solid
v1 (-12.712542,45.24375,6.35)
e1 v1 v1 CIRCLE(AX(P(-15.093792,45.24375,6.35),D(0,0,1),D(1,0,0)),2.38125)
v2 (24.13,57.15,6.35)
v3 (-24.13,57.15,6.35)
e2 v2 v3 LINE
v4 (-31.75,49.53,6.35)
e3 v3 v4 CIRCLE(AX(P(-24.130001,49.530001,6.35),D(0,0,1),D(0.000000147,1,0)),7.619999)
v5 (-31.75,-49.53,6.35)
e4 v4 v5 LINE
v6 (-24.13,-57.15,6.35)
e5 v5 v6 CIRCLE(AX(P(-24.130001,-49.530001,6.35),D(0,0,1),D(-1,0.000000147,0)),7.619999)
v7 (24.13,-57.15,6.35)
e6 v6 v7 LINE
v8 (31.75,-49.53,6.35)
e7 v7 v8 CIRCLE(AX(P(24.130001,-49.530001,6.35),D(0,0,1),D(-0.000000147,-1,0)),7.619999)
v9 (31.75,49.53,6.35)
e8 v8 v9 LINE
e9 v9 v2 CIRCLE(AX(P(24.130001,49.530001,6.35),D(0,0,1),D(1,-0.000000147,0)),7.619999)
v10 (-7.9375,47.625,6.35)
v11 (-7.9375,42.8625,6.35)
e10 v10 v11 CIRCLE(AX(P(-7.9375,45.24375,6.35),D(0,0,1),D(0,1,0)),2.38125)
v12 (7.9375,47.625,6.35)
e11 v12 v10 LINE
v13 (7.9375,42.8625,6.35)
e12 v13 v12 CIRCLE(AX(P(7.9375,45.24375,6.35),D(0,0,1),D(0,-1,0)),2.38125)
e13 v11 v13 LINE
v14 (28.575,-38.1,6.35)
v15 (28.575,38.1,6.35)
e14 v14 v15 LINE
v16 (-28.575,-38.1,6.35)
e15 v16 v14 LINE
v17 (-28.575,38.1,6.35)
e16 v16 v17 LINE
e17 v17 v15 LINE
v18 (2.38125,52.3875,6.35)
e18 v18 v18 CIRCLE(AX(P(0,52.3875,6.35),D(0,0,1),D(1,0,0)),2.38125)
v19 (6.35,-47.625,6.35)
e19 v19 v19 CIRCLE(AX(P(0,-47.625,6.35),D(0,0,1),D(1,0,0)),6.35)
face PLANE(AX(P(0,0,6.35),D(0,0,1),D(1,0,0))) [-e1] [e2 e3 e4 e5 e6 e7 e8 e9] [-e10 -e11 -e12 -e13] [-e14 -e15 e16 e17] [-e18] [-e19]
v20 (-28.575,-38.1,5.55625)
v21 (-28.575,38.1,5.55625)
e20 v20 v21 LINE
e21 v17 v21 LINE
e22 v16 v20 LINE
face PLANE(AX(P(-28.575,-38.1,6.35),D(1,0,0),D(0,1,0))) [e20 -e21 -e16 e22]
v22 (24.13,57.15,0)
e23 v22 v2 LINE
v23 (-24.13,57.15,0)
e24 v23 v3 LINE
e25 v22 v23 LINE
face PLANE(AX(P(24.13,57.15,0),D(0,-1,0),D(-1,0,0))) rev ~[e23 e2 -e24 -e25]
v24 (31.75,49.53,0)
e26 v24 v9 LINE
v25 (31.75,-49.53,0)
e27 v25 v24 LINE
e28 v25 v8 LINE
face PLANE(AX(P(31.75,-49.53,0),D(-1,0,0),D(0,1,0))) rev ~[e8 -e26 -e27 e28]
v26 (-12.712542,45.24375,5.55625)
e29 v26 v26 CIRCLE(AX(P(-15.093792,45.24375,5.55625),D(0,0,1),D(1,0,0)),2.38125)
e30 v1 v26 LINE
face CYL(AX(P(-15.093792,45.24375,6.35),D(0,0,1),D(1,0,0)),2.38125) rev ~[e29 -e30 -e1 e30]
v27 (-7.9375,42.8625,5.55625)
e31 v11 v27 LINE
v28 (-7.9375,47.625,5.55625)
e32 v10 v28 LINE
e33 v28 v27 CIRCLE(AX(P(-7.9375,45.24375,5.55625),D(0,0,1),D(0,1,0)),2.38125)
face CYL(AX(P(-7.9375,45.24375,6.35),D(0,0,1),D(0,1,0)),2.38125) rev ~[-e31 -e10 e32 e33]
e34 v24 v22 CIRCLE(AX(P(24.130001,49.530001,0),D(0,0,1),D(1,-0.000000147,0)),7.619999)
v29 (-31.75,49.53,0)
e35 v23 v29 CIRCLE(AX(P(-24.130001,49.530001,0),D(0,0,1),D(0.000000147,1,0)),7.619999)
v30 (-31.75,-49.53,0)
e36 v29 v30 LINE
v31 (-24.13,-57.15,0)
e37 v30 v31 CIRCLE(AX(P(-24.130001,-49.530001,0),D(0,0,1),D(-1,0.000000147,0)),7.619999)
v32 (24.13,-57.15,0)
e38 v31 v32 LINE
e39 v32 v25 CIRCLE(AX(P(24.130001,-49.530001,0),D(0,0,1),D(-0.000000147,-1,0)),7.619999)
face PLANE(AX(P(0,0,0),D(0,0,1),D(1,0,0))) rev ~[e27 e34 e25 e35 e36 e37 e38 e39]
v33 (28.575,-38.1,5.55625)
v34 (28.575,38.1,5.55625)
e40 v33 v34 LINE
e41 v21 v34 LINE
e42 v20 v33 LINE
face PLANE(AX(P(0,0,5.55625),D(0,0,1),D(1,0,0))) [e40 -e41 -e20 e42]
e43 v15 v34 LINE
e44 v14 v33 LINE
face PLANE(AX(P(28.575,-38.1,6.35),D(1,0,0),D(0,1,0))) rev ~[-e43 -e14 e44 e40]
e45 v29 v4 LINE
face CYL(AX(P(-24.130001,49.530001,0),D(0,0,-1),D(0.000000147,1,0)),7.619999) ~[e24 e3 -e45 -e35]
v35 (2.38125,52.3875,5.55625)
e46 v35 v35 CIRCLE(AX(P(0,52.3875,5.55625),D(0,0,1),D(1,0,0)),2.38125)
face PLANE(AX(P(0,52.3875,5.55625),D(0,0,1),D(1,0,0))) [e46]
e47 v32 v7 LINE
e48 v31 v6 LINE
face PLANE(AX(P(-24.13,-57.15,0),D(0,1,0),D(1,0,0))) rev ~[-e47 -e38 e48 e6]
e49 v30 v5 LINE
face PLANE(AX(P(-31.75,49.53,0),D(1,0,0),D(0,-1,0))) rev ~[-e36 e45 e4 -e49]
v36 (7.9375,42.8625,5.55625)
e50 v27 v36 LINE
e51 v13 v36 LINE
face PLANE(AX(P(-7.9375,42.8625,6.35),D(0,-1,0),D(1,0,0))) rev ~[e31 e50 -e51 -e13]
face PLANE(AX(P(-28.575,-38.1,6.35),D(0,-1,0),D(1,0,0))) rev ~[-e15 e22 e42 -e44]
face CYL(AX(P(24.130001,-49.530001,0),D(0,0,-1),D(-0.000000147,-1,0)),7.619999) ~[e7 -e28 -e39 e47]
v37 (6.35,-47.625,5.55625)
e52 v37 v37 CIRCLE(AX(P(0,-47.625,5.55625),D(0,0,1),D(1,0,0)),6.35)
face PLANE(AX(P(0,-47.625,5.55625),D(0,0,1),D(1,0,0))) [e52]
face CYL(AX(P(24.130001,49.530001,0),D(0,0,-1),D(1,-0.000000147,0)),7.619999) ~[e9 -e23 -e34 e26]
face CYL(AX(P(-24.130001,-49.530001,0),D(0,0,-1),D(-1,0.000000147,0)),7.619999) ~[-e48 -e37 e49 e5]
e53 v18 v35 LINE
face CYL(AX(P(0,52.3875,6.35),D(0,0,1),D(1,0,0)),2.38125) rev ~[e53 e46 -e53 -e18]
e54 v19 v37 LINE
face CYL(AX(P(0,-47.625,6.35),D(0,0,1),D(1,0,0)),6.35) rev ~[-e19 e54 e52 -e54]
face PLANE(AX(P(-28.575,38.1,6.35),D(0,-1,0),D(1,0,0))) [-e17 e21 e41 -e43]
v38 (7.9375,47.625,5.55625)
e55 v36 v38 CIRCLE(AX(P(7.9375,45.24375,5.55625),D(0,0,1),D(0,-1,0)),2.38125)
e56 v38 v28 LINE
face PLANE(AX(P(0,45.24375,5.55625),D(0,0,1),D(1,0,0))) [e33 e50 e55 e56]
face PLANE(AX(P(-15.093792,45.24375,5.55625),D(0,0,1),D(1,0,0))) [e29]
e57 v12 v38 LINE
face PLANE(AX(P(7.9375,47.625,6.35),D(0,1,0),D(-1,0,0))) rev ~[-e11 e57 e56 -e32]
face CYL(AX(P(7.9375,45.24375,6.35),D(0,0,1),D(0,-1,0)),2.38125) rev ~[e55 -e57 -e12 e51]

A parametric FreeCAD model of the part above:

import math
import FreeCAD as App
import Part
import Sketcher
Q = App.Units.Quantity

doc = App.newDocument("Part")
params = doc.addObject("Spreadsheet::Sheet", "Params")
for row, (alias, value) in enumerate([
    ("sketch1_radius", "0.3 in"),
    ("sketch1_width", "1.9 in"),
    ("sketch1_height", "3.9 in"),
    ("pad1_length", "0.25 in"),
    ("sketch2_diameter", "0.5 in"),
    ("sketch2_height", "3 in"),
    ("sketch2_diameter2", "0.1875 in"),
    ("sketch2_width", "2.25 in"),
    ("sketch2_width2", "0.625 in"),
    ("pocket1_length", "0.03125 in"),
], start=1):
    params.set(f"A{row}", alias)
    params.set(f"B{row}", "=" + value)
    params.setAlias(f"B{row}", alias)

body = doc.addObject("PartDesign::Body", "Body")

# Sketch on XY plane
sketch1 = doc.addObject("Sketcher::SketchObject", "Sketch")
body.addObject(sketch1)
sketch1.AttachmentSupport = (doc.XY_Plane, [""])
sketch1.MapMode = "FlatFace"
sketch1.addGeometry(Part.ArcOfCircle(Part.Circle(App.Vector(24, 50, 0), App.Vector(0, 0, 1), 8), math.radians(0), math.radians(90)), False)
sketch1.addGeometry(Part.LineSegment(App.Vector(24, 57, 0), App.Vector(-24, 57, 0)), False)
sketch1.addGeometry(Part.ArcOfCircle(Part.Circle(App.Vector(-24, 50, 0), App.Vector(0, 0, 1), 8), math.radians(90), math.radians(180)), False)
sketch1.addGeometry(Part.LineSegment(App.Vector(-32, 50, 0), App.Vector(-32, -50, 0)), False)
sketch1.addGeometry(Part.ArcOfCircle(Part.Circle(App.Vector(-24, -50, 0), App.Vector(0, 0, 1), 8), math.radians(180), math.radians(270)), False)
sketch1.addGeometry(Part.LineSegment(App.Vector(-24, -57, 0), App.Vector(24, -57, 0)), False)
sketch1.addGeometry(Part.ArcOfCircle(Part.Circle(App.Vector(24, -50, 0), App.Vector(0, 0, 1), 8), math.radians(-90), math.radians(0)), False)
sketch1.addGeometry(Part.LineSegment(App.Vector(32, -50, 0), App.Vector(32, 50, 0)), False)
sketch1.addConstraint(Sketcher.Constraint("Tangent", 0, 2, 1, 1))
sketch1.addConstraint(Sketcher.Constraint("Tangent", 1, 2, 2, 1))
sketch1.addConstraint(Sketcher.Constraint("Tangent", 2, 2, 3, 1))
sketch1.addConstraint(Sketcher.Constraint("Tangent", 3, 2, 4, 1))
sketch1.addConstraint(Sketcher.Constraint("Tangent", 4, 2, 5, 1))
sketch1.addConstraint(Sketcher.Constraint("Tangent", 5, 2, 6, 1))
sketch1.addConstraint(Sketcher.Constraint("Tangent", 6, 2, 7, 1))
sketch1.addConstraint(Sketcher.Constraint("Tangent", 7, 2, 0, 1))
sketch1.addConstraint(Sketcher.Constraint("Horizontal", 1))
sketch1.addConstraint(Sketcher.Constraint("Vertical", 3))
sketch1.addConstraint(Sketcher.Constraint("Horizontal", 5))
sketch1.addConstraint(Sketcher.Constraint("Vertical", 7))
sketch1.addConstraint(Sketcher.Constraint("Equal", 0, 2))
sketch1.addConstraint(Sketcher.Constraint("Equal", 2, 4))
sketch1.addConstraint(Sketcher.Constraint("Equal", 4, 6))
sketch1.addConstraint(Sketcher.Constraint("Symmetric", 0, 3, 4, 3, -1, 1))
sketch1.addConstraint(Sketcher.Constraint("Radius", 0, Q("0.3 in")))
sketch1.addConstraint(Sketcher.Constraint("DistanceX", 1, 2, 1, 1, Q("1.9 in")))
sketch1.addConstraint(Sketcher.Constraint("DistanceY", 3, 2, 3, 1, Q("3.9 in")))
sketch1.setExpression("Constraints[16]", "Params.sketch1_radius")
sketch1.setExpression("Constraints[17]", "Params.sketch1_width")
sketch1.setExpression("Constraints[18]", "Params.sketch1_height")
pad1 = doc.addObject("PartDesign::Pad", "Pad")
body.addObject(pad1)
pad1.Profile = sketch1
pad1.setExpression("Length", "Params.pad1_length")

# Sketch on XY plane
sketch2 = doc.addObject("Sketcher::SketchObject", "Sketch001")
body.addObject(sketch2)
sketch2.AttachmentSupport = (doc.XY_Plane, [""])
sketch2.MapMode = "FlatFace"
sketch2.AttachmentOffset = App.Placement(App.Vector(0, 0, 0.25 * 25.4), App.Rotation())
sketch2.addGeometry(Part.Circle(App.Vector(0, -47.6, 0), App.Vector(0, 0, 1), 6.3), False)
sketch2.addGeometry(Part.ArcOfCircle(Part.Circle(App.Vector(-7.9, 45.2, 0), App.Vector(0, 0, 1), 2.4), math.radians(90), math.radians(270)), False)
sketch2.addGeometry(Part.LineSegment(App.Vector(-7.9, 42.9, 0), App.Vector(7.9, 42.9, 0)), False)
sketch2.addGeometry(Part.ArcOfCircle(Part.Circle(App.Vector(7.9, 45.2, 0), App.Vector(0, 0, 1), 2.4), math.radians(-90), math.radians(90)), False)
sketch2.addGeometry(Part.LineSegment(App.Vector(7.9, 47.6, 0), App.Vector(-7.9, 47.6, 0)), False)
sketch2.addGeometry(Part.LineSegment(App.Vector(-28.6, 38.1, 0), App.Vector(-28.6, -38.1, 0)), False)
sketch2.addGeometry(Part.LineSegment(App.Vector(-28.6, -38.1, 0), App.Vector(28.6, -38.1, 0)), False)
sketch2.addGeometry(Part.LineSegment(App.Vector(28.6, -38.1, 0), App.Vector(28.6, 38.1, 0)), False)
sketch2.addGeometry(Part.LineSegment(App.Vector(28.6, 38.1, 0), App.Vector(-28.6, 38.1, 0)), False)
sketch2.addGeometry(Part.Circle(App.Vector(-15.1, 45.2, 0), App.Vector(0, 0, 1), 2.4), False)
sketch2.addGeometry(Part.Circle(App.Vector(0, 52.4, 0), App.Vector(0, 0, 1), 2.4), False)
sketch2.addConstraint(Sketcher.Constraint("Tangent", 1, 2, 2, 1))
sketch2.addConstraint(Sketcher.Constraint("Tangent", 2, 2, 3, 1))
sketch2.addConstraint(Sketcher.Constraint("Tangent", 3, 2, 4, 1))
sketch2.addConstraint(Sketcher.Constraint("Tangent", 4, 2, 1, 1))
sketch2.addConstraint(Sketcher.Constraint("Coincident", 5, 2, 6, 1))
sketch2.addConstraint(Sketcher.Constraint("Coincident", 6, 2, 7, 1))
sketch2.addConstraint(Sketcher.Constraint("Coincident", 7, 2, 8, 1))
sketch2.addConstraint(Sketcher.Constraint("Coincident", 8, 2, 5, 1))
sketch2.addConstraint(Sketcher.Constraint("Horizontal", 2))
sketch2.addConstraint(Sketcher.Constraint("Horizontal", 4))
sketch2.addConstraint(Sketcher.Constraint("Vertical", 5))
sketch2.addConstraint(Sketcher.Constraint("Horizontal", 6))
sketch2.addConstraint(Sketcher.Constraint("Vertical", 7))
sketch2.addConstraint(Sketcher.Constraint("Horizontal", 8))
sketch2.addConstraint(Sketcher.Constraint("Equal", 3, 9))
sketch2.addConstraint(Sketcher.Constraint("Equal", 9, 10))
sketch2.addConstraint(Sketcher.Constraint("Symmetric", 5, 2, 7, 2, -1, 1))
sketch2.addConstraint(Sketcher.Constraint("PointOnObject", 0, 3, -2))
sketch2.addConstraint(Sketcher.Constraint("PointOnObject", 10, 3, -2))
sketch2.addConstraint(Sketcher.Constraint("Horizontal", 3, 3, 9, 3))
sketch2.addConstraint(Sketcher.Constraint("Diameter", 0, Q("0.5 in")))
sketch2.addConstraint(Sketcher.Constraint("DistanceY", 5, 2, 5, 1, Q("3 in")))
sketch2.addConstraint(Sketcher.Constraint("Diameter", 9, Q("0.1875 in")))
sketch2.addConstraint(Sketcher.Constraint("DistanceX", 6, 1, 6, 2, Q("2.25 in")))
sketch2.addConstraint(Sketcher.Constraint("DistanceX", 2, 1, 2, 2, Q("0.625 in")))
sketch2.addConstraint(Sketcher.Constraint("DistanceY", 0, 3, -1, 1, Q("1.875 in")))
sketch2.addConstraint(Sketcher.Constraint("DistanceX", 1, 3, -1, 1, Q("0.3125 in")))
sketch2.addConstraint(Sketcher.Constraint("DistanceY", -1, 1, 1, 3, Q("1.78125 in")))
sketch2.addConstraint(Sketcher.Constraint("DistanceY", -1, 1, 10, 3, Q("2.0625 in")))
sketch2.addConstraint(Sketcher.Constraint("DistanceX", 9, 3, -1, 1, Q("15.093792 mm")))
sketch2.setExpression("Constraints[20]", "Params.sketch2_diameter")
sketch2.setExpression("Constraints[21]", "Params.sketch2_height")
sketch2.setExpression("Constraints[22]", "Params.sketch2_diameter2")
sketch2.setExpression("Constraints[23]", "Params.sketch2_width")
sketch2.setExpression("Constraints[24]", "Params.sketch2_width2")
pocket1 = doc.addObject("PartDesign::Pocket", "Pocket")
body.addObject(pocket1)
pocket1.Profile = sketch2
pocket1.setExpression("Length", "Params.pocket1_length")

doc.recompute()
